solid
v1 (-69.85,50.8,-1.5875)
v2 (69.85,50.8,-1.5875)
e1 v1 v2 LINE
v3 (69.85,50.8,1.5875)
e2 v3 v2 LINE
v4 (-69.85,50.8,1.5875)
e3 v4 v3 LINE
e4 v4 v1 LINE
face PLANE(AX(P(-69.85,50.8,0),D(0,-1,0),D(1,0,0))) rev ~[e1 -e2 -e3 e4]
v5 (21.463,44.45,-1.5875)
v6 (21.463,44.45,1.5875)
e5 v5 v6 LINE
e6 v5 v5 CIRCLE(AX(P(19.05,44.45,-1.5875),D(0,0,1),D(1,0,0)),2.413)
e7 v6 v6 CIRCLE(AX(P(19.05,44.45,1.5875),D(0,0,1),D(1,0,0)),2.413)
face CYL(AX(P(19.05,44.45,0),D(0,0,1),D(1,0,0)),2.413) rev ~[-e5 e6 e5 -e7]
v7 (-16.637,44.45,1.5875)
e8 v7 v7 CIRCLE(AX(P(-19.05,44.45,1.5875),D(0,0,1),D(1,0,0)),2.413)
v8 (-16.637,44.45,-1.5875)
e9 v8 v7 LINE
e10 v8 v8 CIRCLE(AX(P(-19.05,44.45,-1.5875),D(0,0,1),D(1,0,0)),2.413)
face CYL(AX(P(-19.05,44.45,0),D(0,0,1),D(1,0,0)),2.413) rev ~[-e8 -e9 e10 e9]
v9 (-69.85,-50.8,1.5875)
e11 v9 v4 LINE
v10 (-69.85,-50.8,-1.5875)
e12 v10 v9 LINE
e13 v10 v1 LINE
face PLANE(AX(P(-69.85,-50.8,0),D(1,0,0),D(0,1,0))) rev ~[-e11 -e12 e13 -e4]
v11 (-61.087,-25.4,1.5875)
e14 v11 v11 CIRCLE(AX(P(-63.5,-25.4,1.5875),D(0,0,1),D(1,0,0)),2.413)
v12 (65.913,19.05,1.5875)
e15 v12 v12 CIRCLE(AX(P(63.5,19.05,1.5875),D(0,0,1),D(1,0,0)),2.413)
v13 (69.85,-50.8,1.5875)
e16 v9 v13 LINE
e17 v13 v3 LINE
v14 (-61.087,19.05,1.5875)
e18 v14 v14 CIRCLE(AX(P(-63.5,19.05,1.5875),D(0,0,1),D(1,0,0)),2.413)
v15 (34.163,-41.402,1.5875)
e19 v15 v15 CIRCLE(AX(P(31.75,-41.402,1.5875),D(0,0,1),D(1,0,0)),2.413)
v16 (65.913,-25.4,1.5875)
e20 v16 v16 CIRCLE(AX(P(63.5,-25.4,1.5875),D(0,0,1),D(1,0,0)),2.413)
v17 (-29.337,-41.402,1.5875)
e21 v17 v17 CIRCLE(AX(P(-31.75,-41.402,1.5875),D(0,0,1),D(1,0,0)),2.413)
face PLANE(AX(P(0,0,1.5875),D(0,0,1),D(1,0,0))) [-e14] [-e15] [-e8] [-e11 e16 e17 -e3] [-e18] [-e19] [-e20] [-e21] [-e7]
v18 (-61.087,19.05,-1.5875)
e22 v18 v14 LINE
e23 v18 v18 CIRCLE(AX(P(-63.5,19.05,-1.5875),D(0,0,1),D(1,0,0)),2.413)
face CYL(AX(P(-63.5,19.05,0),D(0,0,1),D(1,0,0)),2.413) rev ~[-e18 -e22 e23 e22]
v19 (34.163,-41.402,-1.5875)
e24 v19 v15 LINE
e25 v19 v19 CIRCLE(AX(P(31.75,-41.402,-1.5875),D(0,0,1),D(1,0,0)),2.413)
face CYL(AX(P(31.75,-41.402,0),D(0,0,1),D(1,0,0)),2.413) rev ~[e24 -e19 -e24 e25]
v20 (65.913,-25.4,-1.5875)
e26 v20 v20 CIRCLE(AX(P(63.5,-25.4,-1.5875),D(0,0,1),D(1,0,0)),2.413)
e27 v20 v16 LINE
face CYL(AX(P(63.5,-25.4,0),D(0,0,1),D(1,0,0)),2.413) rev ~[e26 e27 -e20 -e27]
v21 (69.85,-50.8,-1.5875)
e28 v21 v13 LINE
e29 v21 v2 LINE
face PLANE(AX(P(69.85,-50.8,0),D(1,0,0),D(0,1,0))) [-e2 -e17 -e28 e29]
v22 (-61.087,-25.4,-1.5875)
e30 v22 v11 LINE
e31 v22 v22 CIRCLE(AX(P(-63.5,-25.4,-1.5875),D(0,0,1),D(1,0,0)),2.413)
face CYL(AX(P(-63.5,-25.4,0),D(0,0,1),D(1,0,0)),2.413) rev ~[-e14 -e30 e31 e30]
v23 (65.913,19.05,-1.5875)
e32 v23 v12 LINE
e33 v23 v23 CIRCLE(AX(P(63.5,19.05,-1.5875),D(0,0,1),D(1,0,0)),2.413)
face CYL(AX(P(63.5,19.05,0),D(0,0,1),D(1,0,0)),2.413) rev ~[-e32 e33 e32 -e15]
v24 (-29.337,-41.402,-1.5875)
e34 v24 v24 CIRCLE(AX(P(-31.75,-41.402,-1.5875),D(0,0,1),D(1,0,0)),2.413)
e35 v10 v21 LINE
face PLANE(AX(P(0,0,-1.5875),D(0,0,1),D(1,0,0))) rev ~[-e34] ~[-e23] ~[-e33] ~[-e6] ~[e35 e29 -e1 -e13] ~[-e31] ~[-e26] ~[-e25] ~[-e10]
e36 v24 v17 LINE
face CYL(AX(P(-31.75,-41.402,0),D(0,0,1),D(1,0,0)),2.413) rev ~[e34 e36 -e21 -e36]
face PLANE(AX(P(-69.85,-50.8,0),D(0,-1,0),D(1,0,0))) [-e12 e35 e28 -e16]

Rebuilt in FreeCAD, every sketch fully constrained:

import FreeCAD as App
import Part
import Sketcher
Q = App.Units.Quantity

doc = App.newDocument("Part")
body = doc.addObject("PartDesign::Body", "Body")

# Sketch on XY plane
sketch1 = doc.addObject("Sketcher::SketchObject", "Sketch")
body.addObject(sketch1)
sketch1.AttachmentSupport = (doc.XY_Plane, [""])
sketch1.MapMode = "FlatFace"
sketch1.addGeometry(Part.LineSegment(App.Vector(-70, 51, 0), App.Vector(-70, -51, 0)), False)
sketch1.addGeometry(Part.LineSegment(App.Vector(-70, -51, 0), App.Vector(70, -51, 0)), False)
sketch1.addGeometry(Part.LineSegment(App.Vector(70, -51, 0), App.Vector(70, 51, 0)), False)
sketch1.addGeometry(Part.LineSegment(App.Vector(70, 51, 0), App.Vector(-70, 51, 0)), False)
sketch1.addConstraint(Sketcher.Constraint("Coincident", 0, 2, 1, 1))
sketch1.addConstraint(Sketcher.Constraint("Coincident", 1, 2, 2, 1))
sketch1.addConstraint(Sketcher.Constraint("Coincident", 2, 2, 3, 1))
sketch1.addConstraint(Sketcher.Constraint("Coincident", 3, 2, 0, 1))
sketch1.addConstraint(Sketcher.Constraint("Vertical", 0))
sketch1.addConstraint(Sketcher.Constraint("Horizontal", 1))
sketch1.addConstraint(Sketcher.Constraint("Vertical", 2))
sketch1.addConstraint(Sketcher.Constraint("Horizontal", 3))
sketch1.addConstraint(Sketcher.Constraint("Symmetric", 0, 2, 2, 2, -1, 1))
sketch1.addConstraint(Sketcher.Constraint("DistanceY", 0, 2, 0, 1, Q("4 in")))
sketch1.addConstraint(Sketcher.Constraint("DistanceX", 1, 1, 1, 2, Q("5.5 in")))
pad1 = doc.addObject("PartDesign::Pad", "Pad")
body.addObject(pad1)
pad1.Profile = sketch1
pad1.Length = Q("0.125 in")
pad1.Midplane = True

# Sketch on XY plane
sketch2 = doc.addObject("Sketcher::SketchObject", "Sketch001")
body.addObject(sketch2)
sketch2.AttachmentSupport = (doc.XY_Plane, [""])
sketch2.MapMode = "FlatFace"
sketch2.addGeometry(Part.Circle(App.Vector(-63.5, 19.1, 0), App.Vector(0, 0, 1), 2.4), False)
sketch2.addConstraint(Sketcher.Constraint("Diameter", 0, Q("0.19 in")))
sketch2.addConstraint(Sketcher.Constraint("DistanceX", 0, 3, -1, 1, Q("2.5 in")))
sketch2.addConstraint(Sketcher.Constraint("DistanceY", -1, 1, 0, 3, Q("0.75 in")))
pocket1 = doc.addObject("PartDesign::Pocket", "Pocket")
body.addObject(pocket1)
pocket1.Profile = sketch2
pocket1.Length = Q("0.125 in")
pocket1.Midplane = True

# Sketch on XY plane
sketch3 = doc.addObject("Sketcher::SketchObject", "Sketch002")
body.addObject(sketch3)
sketch3.AttachmentSupport = (doc.XY_Plane, [""])
sketch3.MapMode = "FlatFace"
sketch3.addGeometry(Part.Circle(App.Vector(-63.5, -25.4, 0), App.Vector(0, 0, 1), 2.4), False)
sketch3.addConstraint(Sketcher.Constraint("Diameter", 0, Q("0.19 in")))
sketch3.addConstraint(Sketcher.Constraint("DistanceY", 0, 3, -1, 1, Q("1 in")))
sketch3.addConstraint(Sketcher.Constraint("DistanceX", 0, 3, -1, 1, Q("2.5 in")))
pocket2 = doc.addObject("PartDesign::Pocket", "Pocket001")
body.addObject(pocket2)
pocket2.Profile = sketch3
pocket2.Length = Q("0.125 in")
pocket2.Midplane = True

# Sketch on XY plane
sketch4 = doc.addObject("Sketcher::SketchObject", "Sketch003")
body.addObject(sketch4)
sketch4.AttachmentSupport = (doc.XY_Plane, [""])
sketch4.MapMode = "FlatFace"
sketch4.addGeometry(Part.Circle(App.Vector(63.5, -25.4, 0), App.Vector(0, 0, 1), 2.4), False)
sketch4.addConstraint(Sketcher.Constraint("Diameter", 0, Q("0.19 in")))
sketch4.addConstraint(Sketcher.Constraint("DistanceY", 0, 3, -1, 1, Q("1 in")))
sketch4.addConstraint(Sketcher.Constraint("DistanceX", -1, 1, 0, 3, Q("2.5 in")))
pocket3 = doc.addObject("PartDesign::Pocket", "Pocket002")
body.addObject(pocket3)
pocket3.Profile = sketch4
pocket3.Length = Q("0.125 in")
pocket3.Midplane = True

# Sketch on XY plane
sketch5 = doc.addObject("Sketcher::SketchObject", "Sketch004")
body.addObject(sketch5)
sketch5.AttachmentSupport = (doc.XY_Plane, [""])
sketch5.MapMode = "FlatFace"
sketch5.addGeometry(Part.Circle(App.Vector(63.5, 19.1, 0), App.Vector(0, 0, 1), 2.4), False)
sketch5.addConstraint(Sketcher.Constraint("Diameter", 0, Q("0.19 in")))
sketch5.addConstraint(Sketcher.Constraint("DistanceX", -1, 1, 0, 3, Q("2.5 in")))
sketch5.addConstraint(Sketcher.Constraint("DistanceY", -1, 1, 0, 3, Q("0.75 in")))
pocket4 = doc.addObject("PartDesign::Pocket", "Pocket003")
body.addObject(pocket4)
pocket4.Profile = sketch5
pocket4.Length = Q("0.125 in")
pocket4.Midplane = True

# Sketch on XY plane
sketch6 = doc.addObject("Sketcher::SketchObject", "Sketch005")
body.addObject(sketch6)
sketch6.AttachmentSupport = (doc.XY_Plane, [""])
sketch6.MapMode = "FlatFace"
sketch6.addGeometry(Part.Circle(App.Vector(19.1, 44.5, 0), App.Vector(0, 0, 1), 2.4), False)
sketch6.addConstraint(Sketcher.Constraint("Diameter", 0, Q("0.19 in")))
sketch6.addConstraint(Sketcher.Constraint("DistanceX", -1, 1, 0, 3, Q("0.75 in")))
sketch6.addConstraint(Sketcher.Constraint("DistanceY", -1, 1, 0, 3, Q("1.75 in")))
pocket5 = doc.addObject("PartDesign::Pocket", "Pocket004")
body.addObject(pocket5)
pocket5.Profile = sketch6
pocket5.Length = Q("0.125 in")
pocket5.Midplane = True

# Sketch on XY plane
sketch7 = doc.addObject("Sketcher::SketchObject", "Sketch006")
body.addObject(sketch7)
sketch7.AttachmentSupport = (doc.XY_Plane, [""])
sketch7.MapMode = "FlatFace"
sketch7.addGeometry(Part.Circle(App.Vector(-19.1, 44.5, 0), App.Vector(0, 0, 1), 2.4), False)
sketch7.addConstraint(Sketcher.Constraint("Diameter", 0, Q("0.19 in")))
sketch7.addConstraint(Sketcher.Constraint("DistanceX", 0, 3, -1, 1, Q("0.75 in")))
sketch7.addConstraint(Sketcher.Constraint("DistanceY", -1, 1, 0, 3, Q("1.75 in")))
pocket6 = doc.addObject("PartDesign::Pocket", "Pocket005")
body.addObject(pocket6)
pocket6.Profile = sketch7
pocket6.Length = Q("0.125 in")
pocket6.Midplane = True

# Sketch on XY plane
sketch8 = doc.addObject("Sketcher::SketchObject", "Sketch007")
body.addObject(sketch8)
sketch8.AttachmentSupport = (doc.XY_Plane, [""])
sketch8.MapMode = "FlatFace"
sketch8.addGeometry(Part.Circle(App.Vector(31.8, -41.4, 0), App.Vector(0, 0, 1), 2.4), False)
sketch8.addConstraint(Sketcher.Constraint("Diameter", 0, Q("0.19 in")))
sketch8.addConstraint(Sketcher.Constraint("DistanceX", -1, 1, 0, 3, Q("1.25 in")))
sketch8.addConstraint(Sketcher.Constraint("DistanceY", 0, 3, -1, 1, Q("1.63 in")))
pocket7 = doc.addObject("PartDesign::Pocket", "Pocket006")
body.addObject(pocket7)
pocket7.Profile = sketch8
pocket7.Length = Q("0.125 in")
pocket7.Midplane = True

# Sketch on XY plane
sketch9 = doc.addObject("Sketcher::SketchObject", "Sketch008")
body.addObject(sketch9)
sketch9.AttachmentSupport = (doc.XY_Plane, [""])
sketch9.MapMode = "FlatFace"
sketch9.addGeometry(Part.Circle(App.Vector(-31.8, -41.4, 0), App.Vector(0, 0, 1), 2.4), False)
sketch9.addConstraint(Sketcher.Constraint("Diameter", 0, Q("0.19 in")))
sketch9.addConstraint(Sketcher.Constraint("DistanceX", 0, 3, -1, 1, Q("1.25 in")))
sketch9.addConstraint(Sketcher.Constraint("DistanceY", 0, 3, -1, 1, Q("1.63 in")))
pocket8 = doc.addObject("PartDesign::Pocket", "Pocket007")
body.addObject(pocket8)
pocket8.Profile = sketch9
pocket8.Length = Q("0.125 in")
pocket8.Midplane = True

doc.recompute()
